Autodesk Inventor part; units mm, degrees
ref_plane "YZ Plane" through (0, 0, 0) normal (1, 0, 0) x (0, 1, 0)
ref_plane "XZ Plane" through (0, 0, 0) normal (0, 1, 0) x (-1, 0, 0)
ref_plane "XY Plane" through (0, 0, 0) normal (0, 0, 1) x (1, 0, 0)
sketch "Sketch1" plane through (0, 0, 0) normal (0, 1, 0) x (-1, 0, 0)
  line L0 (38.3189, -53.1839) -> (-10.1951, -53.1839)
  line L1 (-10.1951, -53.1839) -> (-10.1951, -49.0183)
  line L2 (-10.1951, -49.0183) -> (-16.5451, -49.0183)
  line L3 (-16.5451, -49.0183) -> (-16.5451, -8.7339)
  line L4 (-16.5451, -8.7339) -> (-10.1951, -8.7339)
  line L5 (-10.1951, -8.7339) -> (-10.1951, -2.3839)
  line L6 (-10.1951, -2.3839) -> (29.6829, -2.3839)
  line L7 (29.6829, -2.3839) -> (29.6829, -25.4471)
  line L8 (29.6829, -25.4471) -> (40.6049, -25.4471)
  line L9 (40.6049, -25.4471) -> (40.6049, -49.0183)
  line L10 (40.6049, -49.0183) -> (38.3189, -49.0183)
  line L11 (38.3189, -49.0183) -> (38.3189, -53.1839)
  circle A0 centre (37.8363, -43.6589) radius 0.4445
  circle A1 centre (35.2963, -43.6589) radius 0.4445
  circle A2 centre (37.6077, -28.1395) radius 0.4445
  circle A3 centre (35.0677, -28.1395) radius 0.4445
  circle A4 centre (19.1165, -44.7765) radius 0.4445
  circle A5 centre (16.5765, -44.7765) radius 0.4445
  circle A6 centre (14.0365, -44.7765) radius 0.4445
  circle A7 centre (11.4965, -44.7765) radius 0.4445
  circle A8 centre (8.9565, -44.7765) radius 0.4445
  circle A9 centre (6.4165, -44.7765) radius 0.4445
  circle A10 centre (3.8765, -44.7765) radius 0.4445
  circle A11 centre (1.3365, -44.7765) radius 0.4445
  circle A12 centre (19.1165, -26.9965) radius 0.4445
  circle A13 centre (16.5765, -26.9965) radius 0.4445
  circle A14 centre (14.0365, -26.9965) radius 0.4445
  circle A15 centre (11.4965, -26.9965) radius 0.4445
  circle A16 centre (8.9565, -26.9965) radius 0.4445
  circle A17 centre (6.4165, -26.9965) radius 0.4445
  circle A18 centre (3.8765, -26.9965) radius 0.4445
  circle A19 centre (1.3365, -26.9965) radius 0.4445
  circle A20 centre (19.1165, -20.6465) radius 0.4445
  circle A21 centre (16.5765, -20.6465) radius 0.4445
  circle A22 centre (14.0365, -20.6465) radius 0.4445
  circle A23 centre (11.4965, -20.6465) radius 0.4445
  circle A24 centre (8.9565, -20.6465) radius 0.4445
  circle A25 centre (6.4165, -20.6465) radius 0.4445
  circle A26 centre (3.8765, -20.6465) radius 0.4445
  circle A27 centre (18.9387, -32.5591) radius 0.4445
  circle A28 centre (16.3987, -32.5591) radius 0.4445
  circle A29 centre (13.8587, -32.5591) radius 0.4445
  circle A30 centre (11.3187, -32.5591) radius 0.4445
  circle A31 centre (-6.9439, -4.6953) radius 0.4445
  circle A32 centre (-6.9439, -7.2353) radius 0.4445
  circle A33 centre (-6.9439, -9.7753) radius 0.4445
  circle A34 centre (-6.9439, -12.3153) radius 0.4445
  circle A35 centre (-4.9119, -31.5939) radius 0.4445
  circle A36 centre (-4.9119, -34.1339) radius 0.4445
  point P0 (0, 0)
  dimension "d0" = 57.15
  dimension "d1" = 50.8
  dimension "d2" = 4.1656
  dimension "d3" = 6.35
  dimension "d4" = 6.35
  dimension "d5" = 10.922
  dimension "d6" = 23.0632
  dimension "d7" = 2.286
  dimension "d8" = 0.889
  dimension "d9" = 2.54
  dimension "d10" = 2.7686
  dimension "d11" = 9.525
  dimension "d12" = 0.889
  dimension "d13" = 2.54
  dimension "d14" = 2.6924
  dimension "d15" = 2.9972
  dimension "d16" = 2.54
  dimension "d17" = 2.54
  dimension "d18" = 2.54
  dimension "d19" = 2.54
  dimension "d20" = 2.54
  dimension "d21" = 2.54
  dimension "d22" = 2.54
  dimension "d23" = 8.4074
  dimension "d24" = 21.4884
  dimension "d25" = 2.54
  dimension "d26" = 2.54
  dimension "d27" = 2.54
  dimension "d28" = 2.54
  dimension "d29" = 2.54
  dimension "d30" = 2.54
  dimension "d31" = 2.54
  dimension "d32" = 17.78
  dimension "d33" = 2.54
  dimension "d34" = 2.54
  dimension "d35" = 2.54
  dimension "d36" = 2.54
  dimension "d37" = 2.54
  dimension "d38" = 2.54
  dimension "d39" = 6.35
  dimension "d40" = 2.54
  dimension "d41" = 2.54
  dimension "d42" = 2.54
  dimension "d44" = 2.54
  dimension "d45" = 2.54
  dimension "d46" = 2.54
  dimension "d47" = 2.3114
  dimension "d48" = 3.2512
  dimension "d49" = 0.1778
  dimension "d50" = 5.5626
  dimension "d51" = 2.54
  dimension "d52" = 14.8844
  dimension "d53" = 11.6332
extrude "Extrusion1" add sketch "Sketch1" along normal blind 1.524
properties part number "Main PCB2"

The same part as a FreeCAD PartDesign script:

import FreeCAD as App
import Part
import Sketcher
from FreeCAD import Vector
Q = App.Units.Quantity

doc = App.newDocument("Part")
body = doc.addObject("PartDesign::Body", "Body")

sketch1 = body.newObject("Sketcher::SketchObject", "Sketch")
sketch1.AttachmentSupport = (doc.getObject("XZ_Plane"), [""])
sketch1.MapMode = "FlatFace"
sketch1.addGeometry([
    Part.LineSegment(Vector(10.2, -53.18, 0), Vector(-38.32, -53.18, 0)),
    Part.LineSegment(Vector(-38.32, -53.18, 0), Vector(-38.32, -49.02, 0)),
    Part.LineSegment(Vector(-38.32, -49.02, 0), Vector(-40.6, -49.02, 0)),
    Part.LineSegment(Vector(-40.6, -49.02, 0), Vector(-40.6, -25.45, 0)),
    Part.LineSegment(Vector(-40.6, -25.45, 0), Vector(-29.68, -25.45, 0)),
    Part.LineSegment(Vector(-29.68, -25.45, 0), Vector(-29.68, -2.38, 0)),
    Part.LineSegment(Vector(-29.68, -2.38, 0), Vector(10.2, -2.38, 0)),
    Part.LineSegment(Vector(10.2, -2.38, 0), Vector(10.2, -8.73, 0)),
    Part.LineSegment(Vector(10.2, -8.73, 0), Vector(16.55, -8.73, 0)),
    Part.LineSegment(Vector(16.55, -8.73, 0), Vector(16.55, -49.02, 0)),
    Part.LineSegment(Vector(16.55, -49.02, 0), Vector(10.2, -49.02, 0)),
    Part.LineSegment(Vector(10.2, -49.02, 0), Vector(10.2, -53.18, 0)),
    Part.Circle(Vector(-1.34, -44.78, 0), Vector(0, 0, 1), 0.44),
    Part.Circle(Vector(-3.88, -44.78, 0), Vector(0, 0, 1), 0.44),
    Part.Circle(Vector(-6.42, -44.78, 0), Vector(0, 0, 1), 0.44),
    Part.Circle(Vector(-8.96, -44.78, 0), Vector(0, 0, 1), 0.44),
    Part.Circle(Vector(-11.5, -44.78, 0), Vector(0, 0, 1), 0.44),
    Part.Circle(Vector(4.91, -34.13, 0), Vector(0, 0, 1), 0.44),
    Part.Circle(Vector(4.91, -31.59, 0), Vector(0, 0, 1), 0.44),
    Part.Circle(Vector(-11.32, -32.56, 0), Vector(0, 0, 1), 0.44),
    Part.Circle(Vector(-14.04, -44.78, 0), Vector(0, 0, 1), 0.44),
    Part.Circle(Vector(-16.58, -44.78, 0), Vector(0, 0, 1), 0.44),
    Part.Circle(Vector(-19.12, -44.78, 0), Vector(0, 0, 1), 0.44),
    Part.Circle(Vector(-35.3, -43.66, 0), Vector(0, 0, 1), 0.44),
    Part.Circle(Vector(-37.84, -43.66, 0), Vector(0, 0, 1), 0.44),
    Part.Circle(Vector(-13.86, -32.56, 0), Vector(0, 0, 1), 0.44),
    Part.Circle(Vector(-16.4, -32.56, 0), Vector(0, 0, 1), 0.44),
    Part.Circle(Vector(-18.94, -32.56, 0), Vector(0, 0, 1), 0.44),
    Part.Circle(Vector(-35.07, -28.14, 0), Vector(0, 0, 1), 0.44),
    Part.Circle(Vector(-37.61, -28.14, 0), Vector(0, 0, 1), 0.44),
    Part.Circle(Vector(-1.34, -27, 0), Vector(0, 0, 1), 0.44),
    Part.Circle(Vector(-3.88, -27, 0), Vector(0, 0, 1), 0.44),
    Part.Circle(Vector(-6.42, -27, 0), Vector(0, 0, 1), 0.44),
    Part.Circle(Vector(-8.96, -27, 0), Vector(0, 0, 1), 0.44),
    Part.Circle(Vector(-11.5, -27, 0), Vector(0, 0, 1), 0.44),
    Part.Circle(Vector(-3.88, -20.65, 0), Vector(0, 0, 1), 0.44),
    Part.Circle(Vector(-6.42, -20.65, 0), Vector(0, 0, 1), 0.44),
    Part.Circle(Vector(-8.96, -20.65, 0), Vector(0, 0, 1), 0.44),
    Part.Circle(Vector(-11.5, -20.65, 0), Vector(0, 0, 1), 0.44),
    Part.Circle(Vector(6.94, -12.32, 0), Vector(0, 0, 1), 0.44),
    Part.Circle(Vector(6.94, -9.78, 0), Vector(0, 0, 1), 0.44),
    Part.Circle(Vector(6.94, -7.24, 0), Vector(0, 0, 1), 0.44),
    Part.Circle(Vector(6.94, -4.7, 0), Vector(0, 0, 1), 0.44),
    Part.Circle(Vector(-14.04, -27, 0), Vector(0, 0, 1), 0.44),
    Part.Circle(Vector(-16.58, -27, 0), Vector(0, 0, 1), 0.44),
    Part.Circle(Vector(-19.12, -27, 0), Vector(0, 0, 1), 0.44),
    Part.Circle(Vector(-14.04, -20.65, 0), Vector(0, 0, 1), 0.44),
    Part.Circle(Vector(-16.58, -20.65, 0), Vector(0, 0, 1), 0.44),
    Part.Circle(Vector(-19.12, -20.65, 0), Vector(0, 0, 1), 0.44),
], False)
sketch1.addConstraint([
    Sketcher.Constraint("Coincident", 0, 2, 1, 1),
    Sketcher.Constraint("Coincident", 1, 2, 2, 1),
    Sketcher.Constraint("Coincident", 2, 2, 3, 1),
    Sketcher.Constraint("Coincident", 3, 2, 4, 1),
    Sketcher.Constraint("Coincident", 4, 2, 5, 1),
    Sketcher.Constraint("Coincident", 5, 2, 6, 1),
    Sketcher.Constraint("Coincident", 6, 2, 7, 1),
    Sketcher.Constraint("Coincident", 7, 2, 8, 1),
    Sketcher.Constraint("Coincident", 8, 2, 9, 1),
    Sketcher.Constraint("Coincident", 9, 2, 10, 1),
    Sketcher.Constraint("Coincident", 10, 2, 11, 1),
    Sketcher.Constraint("Coincident", 11, 2, 0, 1),
    Sketcher.Constraint("Horizontal", 0),
    Sketcher.Constraint("Vertical", 1),
    Sketcher.Constraint("Horizontal", 2),
    Sketcher.Constraint("Vertical", 3),
    Sketcher.Constraint("Horizontal", 4),
    Sketcher.Constraint("Vertical", 5),
    Sketcher.Constraint("Horizontal", 6),
    Sketcher.Constraint("Vertical", 7),
    Sketcher.Constraint("Horizontal", 8),
    Sketcher.Constraint("Vertical", 9),
    Sketcher.Constraint("Horizontal", 10),
    Sketcher.Constraint("Vertical", 11),
    Sketcher.Constraint("Equal", 12, 13),
    Sketcher.Constraint("Equal", 13, 14),
    Sketcher.Constraint("Equal", 14, 15),
    Sketcher.Constraint("Equal", 15, 16),
    Sketcher.Constraint("Equal", 16, 17),
    Sketcher.Constraint("Equal", 17, 18),
    Sketcher.Constraint("Equal", 18, 19),
    Sketcher.Constraint("Equal", 19, 20),
    Sketcher.Constraint("Equal", 20, 21),
    Sketcher.Constraint("Equal", 21, 22),
    Sketcher.Constraint("Equal", 22, 23),
    Sketcher.Constraint("Equal", 23, 24),
    Sketcher.Constraint("Equal", 24, 25),
    Sketcher.Constraint("Equal", 25, 26),
    Sketcher.Constraint("Equal", 26, 27),
    Sketcher.Constraint("Equal", 27, 28),
    Sketcher.Constraint("Equal", 28, 29),
    Sketcher.Constraint("Equal", 29, 30),
    Sketcher.Constraint("Equal", 30, 31),
    Sketcher.Constraint("Equal", 31, 32),
    Sketcher.Constraint("Equal", 32, 33),
    Sketcher.Constraint("Equal", 33, 34),
    Sketcher.Constraint("Equal", 34, 35),
    Sketcher.Constraint("Equal", 35, 36),
    Sketcher.Constraint("Equal", 36, 37),
    Sketcher.Constraint("Equal", 37, 38),
    Sketcher.Constraint("Equal", 38, 39),
    Sketcher.Constraint("Equal", 39, 40),
    Sketcher.Constraint("Equal", 40, 41),
    Sketcher.Constraint("Equal", 41, 42),
    Sketcher.Constraint("Equal", 42, 43),
    Sketcher.Constraint("Equal", 43, 44),
    Sketcher.Constraint("Equal", 44, 45),
    Sketcher.Constraint("Equal", 45, 46),
    Sketcher.Constraint("Equal", 46, 47),
    Sketcher.Constraint("Equal", 47, 48),
    Sketcher.Constraint("Horizontal", 12, 3, 13, 3),
    Sketcher.Constraint("Horizontal", 13, 3, 14, 3),
    Sketcher.Constraint("Horizontal", 14, 3, 15, 3),
    Sketcher.Constraint("Horizontal", 15, 3, 16, 3),
    Sketcher.Constraint("Horizontal", 16, 3, 20, 3),
    Sketcher.Constraint("Horizontal", 20, 3, 21, 3),
    Sketcher.Constraint("Horizontal", 21, 3, 22, 3),
    Sketcher.Constraint("Horizontal", 23, 3, 24, 3),
    Sketcher.Constraint("Horizontal", 19, 3, 25, 3),
    Sketcher.Constraint("Horizontal", 25, 3, 26, 3),
    Sketcher.Constraint("Horizontal", 26, 3, 27, 3),
    Sketcher.Constraint("Horizontal", 28, 3, 29, 3),
    Sketcher.Constraint("Horizontal", 30, 3, 31, 3),
    Sketcher.Constraint("Horizontal", 31, 3, 32, 3),
    Sketcher.Constraint("Horizontal", 32, 3, 33, 3),
    Sketcher.Constraint("Horizontal", 33, 3, 34, 3),
    Sketcher.Constraint("Horizontal", 35, 3, 36, 3),
    Sketcher.Constraint("Horizontal", 36, 3, 37, 3),
    Sketcher.Constraint("Horizontal", 37, 3, 38, 3),
    Sketcher.Constraint("Horizontal", 34, 3, 43, 3),
    Sketcher.Constraint("Horizontal", 43, 3, 44, 3),
    Sketcher.Constraint("Horizontal", 44, 3, 45, 3),
    Sketcher.Constraint("Horizontal", 38, 3, 46, 3),
    Sketcher.Constraint("Horizontal", 46, 3, 47, 3),
    Sketcher.Constraint("Horizontal", 47, 3, 48, 3),
    Sketcher.Constraint("Horizontal", 2, 2, 9, 2),
    Sketcher.Constraint("Vertical", 17, 3, 18, 3),
    Sketcher.Constraint("Vertical", 12, 3, 30, 3),
    Sketcher.Constraint("Vertical", 13, 3, 31, 3),
    Sketcher.Constraint("Vertical", 14, 3, 32, 3),
    Sketcher.Constraint("Vertical", 15, 3, 33, 3),
    Sketcher.Constraint("Vertical", 16, 3, 34, 3),
    Sketcher.Constraint("Vertical", 31, 3, 35, 3),
    Sketcher.Constraint("Vertical", 32, 3, 36, 3),
    Sketcher.Constraint("Vertical", 33, 3, 37, 3),
    Sketcher.Constraint("Vertical", 34, 3, 38, 3),
    Sketcher.Constraint("Vertical", 39, 3, 40, 3),
    Sketcher.Constraint("Vertical", 40, 3, 41, 3),
    Sketcher.Constraint("Vertical", 41, 3, 42, 3),
    Sketcher.Constraint("Vertical", 20, 3, 43, 3),
    Sketcher.Constraint("Vertical", 21, 3, 44, 3),
    Sketcher.Constraint("Vertical", 22, 3, 45, 3),
    Sketcher.Constraint("Vertical", 43, 3, 46, 3),
    Sketcher.Constraint("Vertical", 44, 3, 47, 3),
    Sketcher.Constraint("Vertical", 45, 3, 48, 3),
    Sketcher.Constraint("Vertical", 7, 2, 10, 2),
    Sketcher.Constraint("Equal", 10, 7),
    Sketcher.Constraint("Diameter", 12, Q("0.035 in")),
    Sketcher.Constraint("DistanceX", 2, 2, 2, 1, Q("0.09 in")),
    Sketcher.Constraint("DistanceX", 4, 1, 4, 2, Q("0.43 in")),
    Sketcher.Constraint("DistanceX", 8, 1, 8, 2, Q("0.25 in")),
    Sketcher.Constraint("DistanceX", 13, 3, 12, 3, Q("0.1 in")),
    Sketcher.Constraint("DistanceX", 14, 3, 13, 3, Q("0.1 in")),
    Sketcher.Constraint("DistanceX", 15, 3, 14, 3, Q("0.1 in")),
    Sketcher.Constraint("DistanceX", 16, 3, 15, 3, Q("0.1 in")),
    Sketcher.Constraint("DistanceY", 17, 3, 18, 3, Q("0.1 in")),
    Sketcher.Constraint("DistanceX", 20, 3, 16, 3, Q("0.1 in")),
    Sketcher.Constraint("DistanceX", 21, 3, 20, 3, Q("0.1 in")),
    Sketcher.Constraint("DistanceX", 22, 3, 21, 3, Q("0.1 in")),
    Sketcher.Constraint("DistanceX", 24, 3, 23, 3, Q("0.1 in")),
    Sketcher.Constraint("DistanceX", 25, 3, 19, 3, Q("0.1 in")),
    Sketcher.Constraint("DistanceX", 26, 3, 25, 3, Q("0.1 in")),
    Sketcher.Constraint("DistanceX", 27, 3, 26, 3, Q("0.1 in")),
    Sketcher.Constraint("DistanceX", 29, 3, 28, 3, Q("0.1 in")),
    Sketcher.Constraint("DistanceY", 39, 3, 40, 3, Q("0.1 in")),
    Sketcher.Constraint("DistanceY", 40, 3, 41, 3, Q("0.1 in")),
    Sketcher.Constraint("DistanceY", 41, 3, 42, 3, Q("0.1 in")),
    Sketcher.Constraint("DistanceY", 1, 1, 1, 2, Q("0.164 in")),
    Sketcher.Constraint("DistanceY", 5, 1, 5, 2, Q("0.908 in")),
    Sketcher.Constraint("DistanceY", 31, 3, 35, 3, Q("0.25 in")),
    Sketcher.Constraint("DistanceX", 16, 3, 19, 3, Q("0.007 in")),
    Sketcher.Constraint("DistanceX", 24, 3, 28, 3, Q("0.109 in")),
    Sketcher.Constraint("DistanceY", 19, 3, 30, 3, Q("0.219 in")),
    Sketcher.Constraint("DistanceY", 0, 2, 24, 3, Q("0.375 in")),
    Sketcher.Constraint("DistanceY", 0, 2, 22, 3, Q("0.331 in")),
    Sketcher.Constraint("DistanceX", 2, 2, 24, 3, Q("0.109 in")),
    Sketcher.Constraint("DistanceY", 29, 3, 3, 2, Q("0.106 in")),
    Sketcher.Constraint("DistanceX", 3, 2, 45, 3, Q("0.846 in")),
    Sketcher.Constraint("DistanceX", 42, 3, 6, 2, Q("0.128 in")),
    Sketcher.Constraint("DistanceY", 42, 3, 6, 2, Q("0.091 in")),
    Sketcher.Constraint("DistanceX", 17, 3, 9, 2, Q("0.458 in")),
    Sketcher.Constraint("DistanceY", 9, 2, 17, 3, Q("0.586 in")),
    Sketcher.Constraint("DistanceX", 0, 2, 0, 1, Q("1.91 in")),
    Sketcher.Constraint("DistanceY", 3, 1, 3, 2, Q("0.928 in")),
    Sketcher.Constraint("DistanceY", 16, 3, 19, 3, Q("0.481 in")),
    Sketcher.Constraint("DistanceX", 12, 3, -1, 1, Q("1.3365 mm")),
    Sketcher.Constraint("DistanceY", 12, 3, -1, 1, Q("44.7765 mm")),
])
pad1 = body.newObject("PartDesign::Pad", "Pad")
pad1.Profile = sketch1
pad1.Length = Q("0.06 in")
pad1.Reversed = True

doc.recompute()
